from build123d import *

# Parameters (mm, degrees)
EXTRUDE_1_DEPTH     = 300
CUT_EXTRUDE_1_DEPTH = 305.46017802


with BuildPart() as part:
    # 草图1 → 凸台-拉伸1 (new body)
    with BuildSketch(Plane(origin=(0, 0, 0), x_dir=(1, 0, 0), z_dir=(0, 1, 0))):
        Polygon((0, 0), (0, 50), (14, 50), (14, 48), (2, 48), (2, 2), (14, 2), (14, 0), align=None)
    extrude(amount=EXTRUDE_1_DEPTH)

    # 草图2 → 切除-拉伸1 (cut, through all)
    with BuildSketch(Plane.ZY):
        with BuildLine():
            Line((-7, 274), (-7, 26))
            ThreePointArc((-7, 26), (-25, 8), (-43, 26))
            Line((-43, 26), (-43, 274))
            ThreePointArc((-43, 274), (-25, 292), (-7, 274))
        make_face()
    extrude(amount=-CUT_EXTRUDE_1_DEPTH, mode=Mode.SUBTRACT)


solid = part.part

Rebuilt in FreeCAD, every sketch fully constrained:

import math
import FreeCAD as App
import Part
import Sketcher

doc = App.newDocument("Part")
params = doc.addObject("Spreadsheet::Sheet", "Params")
for row, (alias, value) in enumerate([
    ("sketch1_width", "14 mm"),
    ("sketch1_width2", "12 mm"),
    ("sketch1_height", "50 mm"),
    ("sketch1_height2", "2 mm"),
    ("pad1_length", "300 mm"),
    ("sketch2_radius", "18 mm"),
    ("sketch2_width", "248 mm"),
], start=1):
    params.set(f"A{row}", alias)
    params.set(f"B{row}", "=" + value)
    params.setAlias(f"B{row}", alias)

body = doc.addObject("PartDesign::Body", "Body")

# Sketch on XZ plane
sketch1 = body.newObject("Sketcher::SketchObject", "Sketch")
sketch1.AttachmentSupport = (doc.getObject("XZ_Plane"), [""])
sketch1.MapMode = "FlatFace"
sketch1.addGeometry(Part.LineSegment(App.Vector(0, -50, 0), App.Vector(0, 0, 0)), False)
sketch1.addGeometry(Part.LineSegment(App.Vector(0, 0, 0), App.Vector(14, 0, 0)), False)
sketch1.addGeometry(Part.LineSegment(App.Vector(14, 0, 0), App.Vector(14, -2, 0)), False)
sketch1.addGeometry(Part.LineSegment(App.Vector(14, -2, 0), App.Vector(2, -2, 0)), False)
sketch1.addGeometry(Part.LineSegment(App.Vector(2, -2, 0), App.Vector(2, -48, 0)), False)
sketch1.addGeometry(Part.LineSegment(App.Vector(2, -48, 0), App.Vector(14, -48, 0)), False)
sketch1.addGeometry(Part.LineSegment(App.Vector(14, -48, 0), App.Vector(14, -50, 0)), False)
sketch1.addGeometry(Part.LineSegment(App.Vector(14, -50, 0), App.Vector(0, -50, 0)), False)
sketch1.addConstraint(Sketcher.Constraint("Coincident", 0, 2, 1, 1))
sketch1.addConstraint(Sketcher.Constraint("Coincident", 1, 2, 2, 1))
sketch1.addConstraint(Sketcher.Constraint("Coincident", 2, 2, 3, 1))
sketch1.addConstraint(Sketcher.Constraint("Coincident", 3, 2, 4, 1))
sketch1.addConstraint(Sketcher.Constraint("Coincident", 4, 2, 5, 1))
sketch1.addConstraint(Sketcher.Constraint("Coincident", 5, 2, 6, 1))
sketch1.addConstraint(Sketcher.Constraint("Coincident", 6, 2, 7, 1))
sketch1.addConstraint(Sketcher.Constraint("Coincident", 7, 2, 0, 1))
sketch1.addConstraint(Sketcher.Constraint("Vertical", 0))
sketch1.addConstraint(Sketcher.Constraint("Horizontal", 1))
sketch1.addConstraint(Sketcher.Constraint("Vertical", 2))
sketch1.addConstraint(Sketcher.Constraint("Horizontal", 3))
sketch1.addConstraint(Sketcher.Constraint("Vertical", 4))
sketch1.addConstraint(Sketcher.Constraint("Horizontal", 5))
sketch1.addConstraint(Sketcher.Constraint("Vertical", 6))
sketch1.addConstraint(Sketcher.Constraint("Horizontal", 7))
sketch1.addConstraint(Sketcher.Constraint("Coincident", 0, 2, -1, 1))
sketch1.addConstraint(Sketcher.Constraint("Vertical", 2, 2, 5, 2))
sketch1.addConstraint(Sketcher.Constraint("Equal", 2, 6))
sketch1.addConstraint(Sketcher.Constraint("DistanceX", 1, 1, 1, 2, 14.0))
sketch1.addConstraint(Sketcher.Constraint("DistanceX", 3, 2, 3, 1, 12.0))
sketch1.addConstraint(Sketcher.Constraint("DistanceY", 0, 1, 0, 2, 50.0))
sketch1.addConstraint(Sketcher.Constraint("DistanceY", 2, 2, 2, 1, 2.0))
sketch1.setExpression("Constraints[19]", "Params.sketch1_width")
sketch1.setExpression("Constraints[20]", "Params.sketch1_width2")
sketch1.setExpression("Constraints[21]", "Params.sketch1_height")
sketch1.setExpression("Constraints[22]", "Params.sketch1_height2")
pad1 = body.newObject("PartDesign::Pad", "Pad")
pad1.Profile = sketch1
pad1.setExpression("Length", "Params.pad1_length")
pad1.Reversed = True

# Sketch on YZ plane
sketch2 = body.newObject("Sketcher::SketchObject", "Sketch001")
sketch2.AttachmentSupport = (doc.getObject("YZ_Plane"), [""])
sketch2.MapMode = "FlatFace"
sketch2.addGeometry(Part.LineSegment(App.Vector(26, -7, 0), App.Vector(274, -7, 0)), False)
sketch2.addGeometry(Part.ArcOfCircle(Part.Circle(App.Vector(274, -25, 0), App.Vector(0, 0, 1), 18), math.radians(-90), math.radians(90)), False)
sketch2.addGeometry(Part.LineSegment(App.Vector(274, -43, 0), App.Vector(26, -43, 0)), False)
sketch2.addGeometry(Part.ArcOfCircle(Part.Circle(App.Vector(26, -25, 0), App.Vector(0, 0, 1), 18), math.radians(90), math.radians(270)), False)
sketch2.addConstraint(Sketcher.Constraint("Tangent", 0, 2, 1, 2))
sketch2.addConstraint(Sketcher.Constraint("Tangent", 1, 1, 2, 1))
sketch2.addConstraint(Sketcher.Constraint("Tangent", 2, 2, 3, 2))
sketch2.addConstraint(Sketcher.Constraint("Tangent", 3, 1, 0, 1))
sketch2.addConstraint(Sketcher.Constraint("Horizontal", 0))
sketch2.addConstraint(Sketcher.Constraint("Horizontal", 2))
sketch2.addConstraint(Sketcher.Constraint("Radius", 1, 18.0))
sketch2.addConstraint(Sketcher.Constraint("DistanceX", 0, 1, 0, 2, 248.0))
sketch2.addConstraint(Sketcher.Constraint("DistanceX", -1, 1, 1, 3, 274.0))
sketch2.addConstraint(Sketcher.Constraint("DistanceY", 1, 3, -1, 1, 25.0))
sketch2.setExpression("Constraints[6]", "Params.sketch2_radius")
sketch2.setExpression("Constraints[7]", "Params.sketch2_width")
pocket1 = body.newObject("PartDesign::Pocket", "Pocket")
pocket1.Profile = sketch2
pocket1.Type = "ThroughAll"
pocket1.Reversed = True

doc.recompute()
